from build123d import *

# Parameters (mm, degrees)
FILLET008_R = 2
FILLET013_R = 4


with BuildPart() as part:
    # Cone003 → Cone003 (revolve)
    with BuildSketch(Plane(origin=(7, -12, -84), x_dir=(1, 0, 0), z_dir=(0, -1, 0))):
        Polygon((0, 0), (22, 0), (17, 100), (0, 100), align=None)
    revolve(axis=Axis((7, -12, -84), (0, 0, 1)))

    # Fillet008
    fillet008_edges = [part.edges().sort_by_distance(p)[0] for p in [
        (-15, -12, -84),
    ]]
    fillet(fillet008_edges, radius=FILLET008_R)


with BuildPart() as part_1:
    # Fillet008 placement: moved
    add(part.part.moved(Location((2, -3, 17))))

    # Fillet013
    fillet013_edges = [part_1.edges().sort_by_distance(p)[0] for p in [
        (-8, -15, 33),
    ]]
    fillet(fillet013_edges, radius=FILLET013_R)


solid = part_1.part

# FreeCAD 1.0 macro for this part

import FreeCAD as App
import Part
import Sketcher

V = App.Vector
Q = App.Units.Quantity


def edges_at(feature, points):
    """Names of the edges that pass closest to the given points."""
    edges = feature.Shape.Edges
    near = lambda p: min(range(len(edges)), key=lambda i: edges[i].distToShape(Part.Vertex(*p))[0])
    return sorted({f"Edge{near(p) + 1}" for p in points})


def add_polygon(sketch, points):
    """Adds a closed chain of lines whose ends are joined by coincident constraints."""
    first, n = sketch.GeometryCount, len(points)
    for a, b in zip(points, points[1:] + points[:1]):
        sketch.addGeometry(Part.LineSegment(App.Vector(*a, 0), App.Vector(*b, 0)), False)
    for i in range(n):
        sketch.addConstraint(Sketcher.Constraint("Coincident", first + i, 2, first + (i + 1) % n, 1))

doc = App.newDocument("Part")
params = doc.addObject("Spreadsheet::Sheet", "Params")
for row, (alias, value) in enumerate([
    ("sketch1_width", "22 mm"),
    ("sketch1_width2", "17 mm"),
    ("sketch1_height", "100 mm"),
    ("revolution_angle", "360 deg"),
    ("fillet_radius", "2 mm"),
    ("fillet2_radius", "4 mm"),
], start=1):
    params.set(f"A{row}", alias)
    params.set(f"B{row}", "=" + value)
    params.setAlias(f"B{row}", alias)

body = doc.addObject("PartDesign::Body", "Body")

sketch1 = body.newObject("Sketcher::SketchObject", "Sketch")
sketch1.AttachmentSupport = (doc.getObject("XZ_Plane"), [""])
sketch1.MapMode = "FlatFace"
sketch1.AttachmentOffset = App.Placement(V(0, 0, 12), App.Rotation())
add_polygon(sketch1, [(7, -84), (29, -84), (24, 16), (7, 16)])
sketch1.addGeometry(Part.LineSegment(V(7, -84, 0), V(7, 16, 0)), True)
sketch1.addConstraint(Sketcher.Constraint("Horizontal", 0))
sketch1.addConstraint(Sketcher.Constraint("Horizontal", 2))
sketch1.addConstraint(Sketcher.Constraint("Vertical", 3))
sketch1.addConstraint(Sketcher.Constraint("Vertical", 4))
sketch1.addConstraint(Sketcher.Constraint("Coincident", 4, 1, 3, 2))
sketch1.addConstraint(Sketcher.Constraint("Horizontal", 1, 2, 4, 2))
sketch1.addConstraint(Sketcher.Constraint("DistanceX", 0, 1, 0, 2, Q("22 mm")))
sketch1.addConstraint(Sketcher.Constraint("DistanceX", 2, 2, 2, 1, Q("17 mm")))
sketch1.addConstraint(Sketcher.Constraint("DistanceY", 3, 2, 3, 1, Q("100 mm")))
sketch1.addConstraint(Sketcher.Constraint("DistanceX", -1, 1, 0, 2, Q("29 mm")))
sketch1.addConstraint(Sketcher.Constraint("DistanceY", 0, 2, -1, 1, Q("84 mm")))
sketch1.setExpression("Constraints[10]", "Params.sketch1_width")
sketch1.setExpression("Constraints[11]", "Params.sketch1_width2")
sketch1.setExpression("Constraints[12]", "Params.sketch1_height")
revolution = body.newObject("PartDesign::Revolution", "Revolution")
revolution.Profile = sketch1
revolution.ReferenceAxis = (sketch1, ["Axis0"])
revolution.setExpression("Angle", "Params.revolution_angle")
doc.recompute()

fillet = body.newObject("PartDesign::Fillet", "Fillet")
fillet.Base = (revolution, edges_at(revolution, [(-15, -12, -84)]))
fillet.setExpression("Radius", "Params.fillet_radius")
body2 = doc.addObject("PartDesign::Body", "Body001")
doc.recompute()

body.Placement = App.Placement(V(2, -3, 17), App.Rotation(V(0, 0, 1), 0))
boolean = body2.newObject("PartDesign::Boolean", "Boolean")
boolean.Type = "Fuse"
boolean.addObjects([body])
doc.recompute()

fillet2 = body2.newObject("PartDesign::Fillet", "Fillet001")
fillet2.Base = (boolean, edges_at(boolean, [(-8, -15, 33)]))
fillet2.setExpression("Radius", "Params.fillet2_radius")

doc.recompute()
